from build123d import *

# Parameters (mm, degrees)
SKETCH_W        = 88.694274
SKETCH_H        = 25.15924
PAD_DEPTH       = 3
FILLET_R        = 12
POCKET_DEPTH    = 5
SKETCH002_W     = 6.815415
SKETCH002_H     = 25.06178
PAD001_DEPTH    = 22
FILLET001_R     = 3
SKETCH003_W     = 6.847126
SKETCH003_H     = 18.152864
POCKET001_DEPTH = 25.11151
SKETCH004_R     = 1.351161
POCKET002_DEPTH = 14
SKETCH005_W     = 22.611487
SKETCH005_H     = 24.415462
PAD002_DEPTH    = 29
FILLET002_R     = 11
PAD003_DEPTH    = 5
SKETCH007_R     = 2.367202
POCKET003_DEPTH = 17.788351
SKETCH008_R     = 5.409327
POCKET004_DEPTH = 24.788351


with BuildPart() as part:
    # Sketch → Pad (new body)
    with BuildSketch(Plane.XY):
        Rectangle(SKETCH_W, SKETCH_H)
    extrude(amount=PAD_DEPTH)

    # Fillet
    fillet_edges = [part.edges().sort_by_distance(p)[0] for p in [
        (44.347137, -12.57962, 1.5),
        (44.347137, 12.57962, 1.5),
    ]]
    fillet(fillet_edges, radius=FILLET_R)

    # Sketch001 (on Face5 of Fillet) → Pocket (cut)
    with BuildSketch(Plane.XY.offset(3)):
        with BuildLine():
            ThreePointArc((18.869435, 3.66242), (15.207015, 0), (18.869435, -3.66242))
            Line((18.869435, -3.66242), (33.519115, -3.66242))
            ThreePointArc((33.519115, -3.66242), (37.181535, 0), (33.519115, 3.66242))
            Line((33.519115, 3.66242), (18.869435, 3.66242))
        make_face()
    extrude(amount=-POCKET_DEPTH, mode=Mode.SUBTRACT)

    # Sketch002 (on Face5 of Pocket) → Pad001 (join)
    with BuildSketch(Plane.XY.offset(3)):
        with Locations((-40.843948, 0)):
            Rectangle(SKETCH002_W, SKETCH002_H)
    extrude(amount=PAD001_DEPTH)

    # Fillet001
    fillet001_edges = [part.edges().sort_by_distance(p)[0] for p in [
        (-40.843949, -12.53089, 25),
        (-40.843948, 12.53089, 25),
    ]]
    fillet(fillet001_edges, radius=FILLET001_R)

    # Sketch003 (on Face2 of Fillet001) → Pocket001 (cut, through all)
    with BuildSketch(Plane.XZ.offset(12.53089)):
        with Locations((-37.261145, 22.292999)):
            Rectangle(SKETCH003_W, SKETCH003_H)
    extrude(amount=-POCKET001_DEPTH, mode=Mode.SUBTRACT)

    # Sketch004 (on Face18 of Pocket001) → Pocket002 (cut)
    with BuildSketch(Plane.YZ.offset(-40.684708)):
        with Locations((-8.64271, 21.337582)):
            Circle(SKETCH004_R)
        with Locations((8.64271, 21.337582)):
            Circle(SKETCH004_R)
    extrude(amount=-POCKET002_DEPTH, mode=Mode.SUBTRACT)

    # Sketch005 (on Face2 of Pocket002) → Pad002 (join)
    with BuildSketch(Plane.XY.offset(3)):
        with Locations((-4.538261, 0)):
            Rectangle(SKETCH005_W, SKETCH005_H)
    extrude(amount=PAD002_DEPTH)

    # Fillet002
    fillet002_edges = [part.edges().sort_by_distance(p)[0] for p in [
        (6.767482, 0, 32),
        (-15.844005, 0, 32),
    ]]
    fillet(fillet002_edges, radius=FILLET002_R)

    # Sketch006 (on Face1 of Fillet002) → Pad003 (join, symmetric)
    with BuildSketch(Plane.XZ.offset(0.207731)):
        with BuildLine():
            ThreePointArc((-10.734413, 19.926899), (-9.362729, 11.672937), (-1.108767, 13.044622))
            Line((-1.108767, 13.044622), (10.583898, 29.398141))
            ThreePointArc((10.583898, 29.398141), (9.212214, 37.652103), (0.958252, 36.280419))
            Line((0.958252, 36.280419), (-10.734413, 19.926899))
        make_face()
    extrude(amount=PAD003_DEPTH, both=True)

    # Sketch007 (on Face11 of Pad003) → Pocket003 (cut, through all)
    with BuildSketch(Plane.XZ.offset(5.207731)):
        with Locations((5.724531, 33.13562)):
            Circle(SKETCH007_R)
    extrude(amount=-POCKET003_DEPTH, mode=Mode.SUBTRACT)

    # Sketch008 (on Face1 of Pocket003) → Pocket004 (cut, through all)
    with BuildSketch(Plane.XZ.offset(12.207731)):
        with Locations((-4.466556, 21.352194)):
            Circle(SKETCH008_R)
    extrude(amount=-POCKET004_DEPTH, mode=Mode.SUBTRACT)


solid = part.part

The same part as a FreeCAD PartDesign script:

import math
import FreeCAD as App
import Part
import Sketcher

V = App.Vector
Q = App.Units.Quantity


def edges_at(feature, points):
    """Names of the edges that pass closest to the given points."""
    edges = feature.Shape.Edges
    near = lambda p: min(range(len(edges)), key=lambda i: edges[i].distToShape(Part.Vertex(*p))[0])
    return sorted({f"Edge{near(p) + 1}" for p in points})

doc = App.newDocument("Part")
body = doc.addObject("PartDesign::Body", "Body")

sketch1 = body.newObject("Sketcher::SketchObject", "Sketch")
sketch1.AttachmentSupport = (doc.getObject("XY_Plane"), [""])
sketch1.MapMode = "FlatFace"
sketch1.addGeometry(Part.LineSegment(V(-44, 13, 0), V(-44, -13, 0)), False)
sketch1.addGeometry(Part.LineSegment(V(-44, -13, 0), V(44, -13, 0)), False)
sketch1.addGeometry(Part.LineSegment(V(44, -13, 0), V(44, 13, 0)), False)
sketch1.addGeometry(Part.LineSegment(V(44, 13, 0), V(-44, 13, 0)), False)
sketch1.addConstraint(Sketcher.Constraint("Coincident", 0, 2, 1, 1))
sketch1.addConstraint(Sketcher.Constraint("Coincident", 1, 2, 2, 1))
sketch1.addConstraint(Sketcher.Constraint("Coincident", 2, 2, 3, 1))
sketch1.addConstraint(Sketcher.Constraint("Coincident", 3, 2, 0, 1))
sketch1.addConstraint(Sketcher.Constraint("Vertical", 0))
sketch1.addConstraint(Sketcher.Constraint("Horizontal", 1))
sketch1.addConstraint(Sketcher.Constraint("Vertical", 2))
sketch1.addConstraint(Sketcher.Constraint("Horizontal", 3))
sketch1.addConstraint(Sketcher.Constraint("Symmetric", 0, 2, 2, 2, -1, 1))
sketch1.addConstraint(Sketcher.Constraint("DistanceY", 0, 2, 0, 1, Q("25.15924 mm")))
sketch1.addConstraint(Sketcher.Constraint("DistanceX", 1, 1, 1, 2, Q("88.694274 mm")))
pad1 = body.newObject("PartDesign::Pad", "Pad")
pad1.Profile = sketch1
pad1.Length = 3
doc.recompute()

fillet = body.newObject("PartDesign::Fillet", "Fillet")
fillet.Base = (pad1, edges_at(pad1, [(44.347, -12.58, 1.5), (44.347, 12.58, 1.5)]))
fillet.Radius = 12

sketch2 = body.newObject("Sketcher::SketchObject", "Sketch001")
sketch2.AttachmentSupport = (doc.getObject("XY_Plane"), [""])
sketch2.MapMode = "FlatFace"
sketch2.AttachmentOffset = App.Placement(V(0, 0, 3), App.Rotation())
sketch2.addGeometry(Part.ArcOfCircle(Part.Circle(V(18.9, 0, 0), V(0, 0, 1), 3.7), math.radians(90), math.radians(270)), False)
sketch2.addGeometry(Part.LineSegment(V(18.9, -3.7, 0), V(33.5, -3.7, 0)), False)
sketch2.addGeometry(Part.ArcOfCircle(Part.Circle(V(33.5, 0, 0), V(0, 0, 1), 3.7), math.radians(-90), math.radians(90)), False)
sketch2.addGeometry(Part.LineSegment(V(33.5, 3.7, 0), V(18.9, 3.7, 0)), False)
sketch2.addConstraint(Sketcher.Constraint("Tangent", 0, 2, 1, 1))
sketch2.addConstraint(Sketcher.Constraint("Tangent", 1, 2, 2, 1))
sketch2.addConstraint(Sketcher.Constraint("Tangent", 2, 2, 3, 1))
sketch2.addConstraint(Sketcher.Constraint("Tangent", 3, 2, 0, 1))
sketch2.addConstraint(Sketcher.Constraint("Horizontal", 1))
sketch2.addConstraint(Sketcher.Constraint("Horizontal", 3))
sketch2.addConstraint(Sketcher.Constraint("PointOnObject", 0, 3, -1))
sketch2.addConstraint(Sketcher.Constraint("Radius", 0, Q("3.66242 mm")))
sketch2.addConstraint(Sketcher.Constraint("DistanceX", 1, 1, 1, 2, Q("14.64968 mm")))
sketch2.addConstraint(Sketcher.Constraint("DistanceX", -1, 1, 0, 3, Q("18.869435 mm")))
pocket1 = body.newObject("PartDesign::Pocket", "Pocket")
pocket1.Profile = sketch2
pocket1.Length = 5

sketch3 = body.newObject("Sketcher::SketchObject", "Sketch002")
sketch3.AttachmentSupport = (doc.getObject("XY_Plane"), [""])
sketch3.MapMode = "FlatFace"
sketch3.AttachmentOffset = App.Placement(V(0, 0, 3), App.Rotation())
sketch3.addGeometry(Part.LineSegment(V(-44, 13, 0), V(-44, -13, 0)), False)
sketch3.addGeometry(Part.LineSegment(V(-44, -13, 0), V(-37, -13, 0)), False)
sketch3.addGeometry(Part.LineSegment(V(-37, -13, 0), V(-37, 13, 0)), False)
sketch3.addGeometry(Part.LineSegment(V(-37, 13, 0), V(-44, 13, 0)), False)
sketch3.addConstraint(Sketcher.Constraint("Coincident", 0, 2, 1, 1))
sketch3.addConstraint(Sketcher.Constraint("Coincident", 1, 2, 2, 1))
sketch3.addConstraint(Sketcher.Constraint("Coincident", 2, 2, 3, 1))
sketch3.addConstraint(Sketcher.Constraint("Coincident", 3, 2, 0, 1))
sketch3.addConstraint(Sketcher.Constraint("Vertical", 0))
sketch3.addConstraint(Sketcher.Constraint("Horizontal", 1))
sketch3.addConstraint(Sketcher.Constraint("Vertical", 2))
sketch3.addConstraint(Sketcher.Constraint("Horizontal", 3))
sketch3.addConstraint(Sketcher.Constraint("DistanceY", 0, 2, 0, 1, Q("25.06178 mm")))
sketch3.addConstraint(Sketcher.Constraint("DistanceX", 1, 1, 1, 2, Q("6.815415 mm")))
sketch3.addConstraint(Sketcher.Constraint("DistanceY", 0, 2, -1, 1, Q("12.53089 mm")))
sketch3.addConstraint(Sketcher.Constraint("DistanceX", 1, 2, -1, 1, Q("37.43624 mm")))
pad2 = body.newObject("PartDesign::Pad", "Pad001")
pad2.Profile = sketch3
pad2.Length = 22
doc.recompute()

fillet2 = body.newObject("PartDesign::Fillet", "Fillet001")
fillet2.Base = (pad2, edges_at(pad2, [(-40.844, -12.531, 25), (-40.844, 12.531, 25)]))
fillet2.Radius = 3

sketch4 = body.newObject("Sketcher::SketchObject", "Sketch003")
sketch4.AttachmentSupport = (doc.getObject("XZ_Plane"), [""])
sketch4.MapMode = "FlatFace"
sketch4.AttachmentOffset = App.Placement(V(0, 0, 12.53089), App.Rotation())
sketch4.addGeometry(Part.LineSegment(V(-41, 31, 0), V(-41, 13, 0)), False)
sketch4.addGeometry(Part.LineSegment(V(-41, 13, 0), V(-34, 13, 0)), False)
sketch4.addGeometry(Part.LineSegment(V(-34, 13, 0), V(-34, 31, 0)), False)
sketch4.addGeometry(Part.LineSegment(V(-34, 31, 0), V(-41, 31, 0)), False)
sketch4.addConstraint(Sketcher.Constraint("Coincident", 0, 2, 1, 1))
sketch4.addConstraint(Sketcher.Constraint("Coincident", 1, 2, 2, 1))
sketch4.addConstraint(Sketcher.Constraint("Coincident", 2, 2, 3, 1))
sketch4.addConstraint(Sketcher.Constraint("Coincident", 3, 2, 0, 1))
sketch4.addConstraint(Sketcher.Constraint("Vertical", 0))
sketch4.addConstraint(Sketcher.Constraint("Horizontal", 1))
sketch4.addConstraint(Sketcher.Constraint("Vertical", 2))
sketch4.addConstraint(Sketcher.Constraint("Horizontal", 3))
sketch4.addConstraint(Sketcher.Constraint("DistanceX", 1, 1, 1, 2, Q("6.847126 mm")))
sketch4.addConstraint(Sketcher.Constraint("DistanceY", 0, 2, 0, 1, Q("18.152864 mm")))
sketch4.addConstraint(Sketcher.Constraint("DistanceX", 1, 2, -1, 1, Q("33.837582 mm")))
sketch4.addConstraint(Sketcher.Constraint("DistanceY", -1, 1, 2, 2, Q("31.369431 mm")))
pocket2 = body.newObject("PartDesign::Pocket", "Pocket001")
pocket2.Profile = sketch4
pocket2.Type = "ThroughAll"

sketch5 = body.newObject("Sketcher::SketchObject", "Sketch004")
sketch5.AttachmentSupport = (doc.getObject("YZ_Plane"), [""])
sketch5.MapMode = "FlatFace"
sketch5.AttachmentOffset = App.Placement(V(0, 0, -40.684708), App.Rotation())
sketch5.addGeometry(Part.Circle(V(-8.6, 21.3, 0), V(0, 0, 1), 1.4), False)
sketch5.addGeometry(Part.Circle(V(8.6, 21.3, 0), V(0, 0, 1), 1.4), False)
sketch5.addConstraint(Sketcher.Constraint("Equal", 0, 1))
sketch5.addConstraint(Sketcher.Constraint("Symmetric", 0, 3, 1, 3, -2))
sketch5.addConstraint(Sketcher.Constraint("Diameter", 0, Q("2.702322 mm")))
sketch5.addConstraint(Sketcher.Constraint("DistanceX", 0, 3, -1, 1, Q("8.64271 mm")))
sketch5.addConstraint(Sketcher.Constraint("DistanceY", -1, 1, 0, 3, Q("21.337582 mm")))
pocket3 = body.newObject("PartDesign::Pocket", "Pocket002")
pocket3.Profile = sketch5
pocket3.Length = 14

sketch6 = body.newObject("Sketcher::SketchObject", "Sketch005")
sketch6.AttachmentSupport = (doc.getObject("XY_Plane"), [""])
sketch6.MapMode = "FlatFace"
sketch6.AttachmentOffset = App.Placement(V(0, 0, 3), App.Rotation())
sketch6.addGeometry(Part.LineSegment(V(-16, 12, 0), V(-16, -12, 0)), False)
sketch6.addGeometry(Part.LineSegment(V(-16, -12, 0), V(7, -12, 0)), False)
sketch6.addGeometry(Part.LineSegment(V(7, -12, 0), V(7, 12, 0)), False)
sketch6.addGeometry(Part.LineSegment(V(7, 12, 0), V(-16, 12, 0)), False)
sketch6.addConstraint(Sketcher.Constraint("Coincident", 0, 2, 1, 1))
sketch6.addConstraint(Sketcher.Constraint("Coincident", 1, 2, 2, 1))
sketch6.addConstraint(Sketcher.Constraint("Coincident", 2, 2, 3, 1))
sketch6.addConstraint(Sketcher.Constraint("Coincident", 3, 2, 0, 1))
sketch6.addConstraint(Sketcher.Constraint("Vertical", 0))
sketch6.addConstraint(Sketcher.Constraint("Horizontal", 1))
sketch6.addConstraint(Sketcher.Constraint("Vertical", 2))
sketch6.addConstraint(Sketcher.Constraint("Horizontal", 3))
sketch6.addConstraint(Sketcher.Constraint("DistanceX", 1, 1, 1, 2, Q("22.611487 mm")))
sketch6.addConstraint(Sketcher.Constraint("DistanceY", 0, 2, 0, 1, Q("24.415462 mm")))
sketch6.addConstraint(Sketcher.Constraint("DistanceY", 0, 2, -1, 1, Q("12.207731 mm")))
sketch6.addConstraint(Sketcher.Constraint("DistanceX", 0, 2, -1, 1, Q("15.844005 mm")))
pad3 = body.newObject("PartDesign::Pad", "Pad002")
pad3.Profile = sketch6
pad3.Length = 29
doc.recompute()

fillet3 = body.newObject("PartDesign::Fillet", "Fillet002")
fillet3.Base = (pad3, edges_at(pad3, [(6.767, 0, 32), (-15.844, 0, 32)]))
fillet3.Radius = 11

sketch7 = body.newObject("Sketcher::SketchObject", "Sketch006")
sketch7.AttachmentSupport = (doc.getObject("XZ_Plane"), [""])
sketch7.MapMode = "FlatFace"
sketch7.AttachmentOffset = App.Placement(V(0, 0, 0.207731), App.Rotation())
sketch7.addGeometry(Part.ArcOfCircle(Part.Circle(V(-6, 16, 0), V(0, 0, 1), 6), math.radians(144), math.radians(324)), False)
sketch7.addGeometry(Part.LineSegment(V(-1, 13, 0), V(11, 29, 0)), False)
sketch7.addGeometry(Part.ArcOfCircle(Part.Circle(V(6, 33, 0), V(0, 0, 1), 6), math.radians(-36), math.radians(144)), False)
sketch7.addGeometry(Part.LineSegment(V(1, 36, 0), V(-11, 20, 0)), False)
sketch7.addConstraint(Sketcher.Constraint("Tangent", 0, 2, 1, 1))
sketch7.addConstraint(Sketcher.Constraint("Tangent", 1, 2, 2, 1))
sketch7.addConstraint(Sketcher.Constraint("Tangent", 2, 2, 3, 1))
sketch7.addConstraint(Sketcher.Constraint("Tangent", 3, 2, 0, 1))
sketch7.addConstraint(Sketcher.Constraint("Equal", 0, 2))
sketch7.addConstraint(Sketcher.Constraint("Radius", 0, Q("5.916477 mm")))
sketch7.addConstraint(Sketcher.Constraint("DistanceY", -1, 1, 3, 2, Q("19.926899 mm")))
sketch7.addConstraint(Sketcher.Constraint("Distance", 1, Q("20.103631 mm")))
sketch7.addConstraint(Sketcher.Constraint("DistanceX", 0, 3, -1, 1, Q("5.92159 mm")))
sketch7.addConstraint(Sketcher.Constraint("DistanceY", -1, 1, 0, 3, Q("16.48576 mm")))
pad4 = body.newObject("PartDesign::Pad", "Pad003")
pad4.Profile = sketch7
pad4.Length = 10
pad4.Midplane = True

sketch8 = body.newObject("Sketcher::SketchObject", "Sketch007")
sketch8.AttachmentSupport = (doc.getObject("XZ_Plane"), [""])
sketch8.MapMode = "FlatFace"
sketch8.AttachmentOffset = App.Placement(V(0, 0, 5.207731), App.Rotation())
sketch8.addGeometry(Part.Circle(V(5.7, 33.1, 0), V(0, 0, 1), 2.4), False)
sketch8.addConstraint(Sketcher.Constraint("Diameter", 0, Q("4.734404 mm")))
sketch8.addConstraint(Sketcher.Constraint("DistanceX", -1, 1, 0, 3, Q("5.724531 mm")))
sketch8.addConstraint(Sketcher.Constraint("DistanceY", -1, 1, 0, 3, Q("33.13562 mm")))
pocket4 = body.newObject("PartDesign::Pocket", "Pocket003")
pocket4.Profile = sketch8
pocket4.Type = "ThroughAll"

sketch9 = body.newObject("Sketcher::SketchObject", "Sketch008")
sketch9.AttachmentSupport = (doc.getObject("XZ_Plane"), [""])
sketch9.MapMode = "FlatFace"
sketch9.AttachmentOffset = App.Placement(V(0, 0, 12.207731), App.Rotation())
sketch9.addGeometry(Part.Circle(V(-4, 21, 0), V(0, 0, 1), 5), False)
sketch9.addConstraint(Sketcher.Constraint("Diameter", 0, Q("10.818654 mm")))
sketch9.addConstraint(Sketcher.Constraint("DistanceX", 0, 3, -1, 1, Q("4.466556 mm")))
sketch9.addConstraint(Sketcher.Constraint("DistanceY", -1, 1, 0, 3, Q("21.352194 mm")))
pocket5 = body.newObject("PartDesign::Pocket", "Pocket004")
pocket5.Profile = sketch9
pocket5.Type = "ThroughAll"

doc.recompute()
